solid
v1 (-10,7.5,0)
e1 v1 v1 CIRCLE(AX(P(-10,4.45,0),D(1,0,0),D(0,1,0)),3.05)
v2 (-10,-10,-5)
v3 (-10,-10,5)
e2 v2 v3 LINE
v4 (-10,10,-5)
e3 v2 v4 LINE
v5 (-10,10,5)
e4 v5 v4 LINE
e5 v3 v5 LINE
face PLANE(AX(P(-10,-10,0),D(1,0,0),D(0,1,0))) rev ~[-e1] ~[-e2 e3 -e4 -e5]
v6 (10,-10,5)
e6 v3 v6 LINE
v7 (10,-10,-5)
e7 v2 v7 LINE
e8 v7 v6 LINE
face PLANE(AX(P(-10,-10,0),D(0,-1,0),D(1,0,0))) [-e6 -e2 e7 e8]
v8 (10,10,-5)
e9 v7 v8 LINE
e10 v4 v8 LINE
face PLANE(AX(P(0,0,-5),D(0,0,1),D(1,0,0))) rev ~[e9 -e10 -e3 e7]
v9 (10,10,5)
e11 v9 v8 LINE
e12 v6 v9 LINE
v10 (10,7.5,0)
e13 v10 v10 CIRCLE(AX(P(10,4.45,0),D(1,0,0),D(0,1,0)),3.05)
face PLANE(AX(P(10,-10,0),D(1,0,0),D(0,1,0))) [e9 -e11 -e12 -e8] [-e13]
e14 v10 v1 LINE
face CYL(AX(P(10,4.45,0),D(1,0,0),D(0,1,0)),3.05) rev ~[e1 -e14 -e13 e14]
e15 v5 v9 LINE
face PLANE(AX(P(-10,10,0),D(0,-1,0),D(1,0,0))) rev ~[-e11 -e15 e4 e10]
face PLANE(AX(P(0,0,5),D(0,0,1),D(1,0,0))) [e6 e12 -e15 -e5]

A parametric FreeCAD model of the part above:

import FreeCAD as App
import Part
import Sketcher

V = App.Vector
Q = App.Units.Quantity

doc = App.newDocument("Part")
body = doc.addObject("PartDesign::Body", "Body")

sketch1 = body.newObject("Sketcher::SketchObject", "Sketch")
sketch1.AttachmentSupport = (doc.getObject("XY_Plane"), [""])
sketch1.MapMode = "FlatFace"
sketch1.addGeometry([
    Part.LineSegment(V(-10, 10, 0), V(-10, -10, 0)),
    Part.LineSegment(V(-10, -10, 0), V(10, -10, 0)),
    Part.LineSegment(V(10, -10, 0), V(10, 10, 0)),
    Part.LineSegment(V(10, 10, 0), V(-10, 10, 0)),
], False)
sketch1.addConstraint([
    Sketcher.Constraint("Coincident", 0, 2, 1, 1),
    Sketcher.Constraint("Coincident", 1, 2, 2, 1),
    Sketcher.Constraint("Coincident", 2, 2, 3, 1),
    Sketcher.Constraint("Coincident", 3, 2, 0, 1),
    Sketcher.Constraint("Vertical", 0),
    Sketcher.Constraint("Horizontal", 1),
    Sketcher.Constraint("Vertical", 2),
    Sketcher.Constraint("Horizontal", 3),
    Sketcher.Constraint("Symmetric", 0, 2, 2, 2, -1, 1),
    Sketcher.Constraint("Equal", 3, 0),
    Sketcher.Constraint("DistanceX", 1, 1, 1, 2, Q("20 mm")),
])
pad1 = body.newObject("PartDesign::Pad", "Pad")
pad1.Profile = sketch1
pad1.Length = 10
pad1.Midplane = True

sketch2 = body.newObject("Sketcher::SketchObject", "Sketch001")
sketch2.AttachmentSupport = (doc.getObject("YZ_Plane"), [""])
sketch2.MapMode = "FlatFace"
sketch2.AttachmentOffset = App.Placement(V(0, 0, 10), App.Rotation())
sketch2.addGeometry(Part.Circle(V(4.5, 0, 0), V(0, 0, 1), 3), False)
sketch2.addConstraint([
    Sketcher.Constraint("PointOnObject", 0, 3, -1),
    Sketcher.Constraint("Diameter", 0, Q("6.1 mm")),
    Sketcher.Constraint("DistanceX", -1, 1, 0, 3, Q("4.45 mm")),
])
pocket1 = body.newObject("PartDesign::Pocket", "Pocket")
pocket1.Profile = sketch2
pocket1.Type = "ThroughAll"

doc.recompute()
